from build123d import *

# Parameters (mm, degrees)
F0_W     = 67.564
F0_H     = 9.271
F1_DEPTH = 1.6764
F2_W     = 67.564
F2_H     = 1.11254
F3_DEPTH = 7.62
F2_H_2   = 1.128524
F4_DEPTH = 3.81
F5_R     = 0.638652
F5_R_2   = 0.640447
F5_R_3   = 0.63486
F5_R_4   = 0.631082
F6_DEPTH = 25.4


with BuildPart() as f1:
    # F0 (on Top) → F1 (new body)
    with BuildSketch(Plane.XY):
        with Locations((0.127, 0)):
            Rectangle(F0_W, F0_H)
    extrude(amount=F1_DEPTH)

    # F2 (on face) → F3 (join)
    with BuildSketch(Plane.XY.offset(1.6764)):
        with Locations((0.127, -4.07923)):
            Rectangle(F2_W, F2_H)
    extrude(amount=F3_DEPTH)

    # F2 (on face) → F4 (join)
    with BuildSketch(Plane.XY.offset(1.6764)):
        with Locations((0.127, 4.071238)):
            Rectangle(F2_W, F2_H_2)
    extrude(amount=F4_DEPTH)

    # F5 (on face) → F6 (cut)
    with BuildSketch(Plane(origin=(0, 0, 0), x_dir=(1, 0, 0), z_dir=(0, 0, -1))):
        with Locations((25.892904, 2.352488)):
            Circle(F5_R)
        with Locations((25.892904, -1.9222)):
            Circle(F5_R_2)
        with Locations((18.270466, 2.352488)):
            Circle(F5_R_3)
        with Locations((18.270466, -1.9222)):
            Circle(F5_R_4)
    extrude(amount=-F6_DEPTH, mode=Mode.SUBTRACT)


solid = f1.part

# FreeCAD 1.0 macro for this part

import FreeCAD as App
import Part
import Sketcher
from FreeCAD import Vector
Q = App.Units.Quantity


def add_polygon(sketch, points):
    """Adds a closed chain of lines whose ends are joined by coincident constraints."""
    first, n = sketch.GeometryCount, len(points)
    for a, b in zip(points, points[1:] + points[:1]):
        sketch.addGeometry(Part.LineSegment(App.Vector(*a, 0), App.Vector(*b, 0)), False)
    for i in range(n):
        sketch.addConstraint(Sketcher.Constraint("Coincident", first + i, 2, first + (i + 1) % n, 1))

doc = App.newDocument("Part")
body = doc.addObject("PartDesign::Body", "Body")

sketch1 = doc.addObject("Sketcher::SketchObject", "Sketch")
body.addObject(sketch1)
sketch1.AttachmentSupport = (doc.XY_Plane, [""])
sketch1.MapMode = "FlatFace"
add_polygon(sketch1, [(-34, 5), (-34, -5), (34, -5), (34, 5)])
sketch1.addConstraint([
    Sketcher.Constraint("Vertical", 0),
    Sketcher.Constraint("Horizontal", 1),
    Sketcher.Constraint("Vertical", 2),
    Sketcher.Constraint("Horizontal", 3),
    Sketcher.Constraint("DistanceX", 1, 1, 1, 2, Q("2.66 in")),
    Sketcher.Constraint("DistanceY", 0, 2, 0, 1, Q("0.365 in")),
    Sketcher.Constraint("DistanceX", 0, 2, -1, 1, Q("1.325 in")),
    Sketcher.Constraint("DistanceY", 0, 2, -1, 1, Q("0.1825 in")),
])
pad1 = doc.addObject("PartDesign::Pad", "Pad")
body.addObject(pad1)
pad1.Profile = sketch1
pad1.Length = Q("0.066 in")

sketch2 = doc.addObject("Sketcher::SketchObject", "Sketch001")
body.addObject(sketch2)
sketch2.AttachmentSupport = (doc.XY_Plane, [""])
sketch2.MapMode = "FlatFace"
sketch2.AttachmentOffset = App.Placement(Vector(0, 0, 0.066 * 25.4), App.Rotation())
add_polygon(sketch2, [(-33.7, -3.5), (-33.7, -4.6), (33.9, -4.6), (33.9, -3.5)])
sketch2.addConstraint([
    Sketcher.Constraint("Vertical", 0),
    Sketcher.Constraint("Horizontal", 1),
    Sketcher.Constraint("Vertical", 2),
    Sketcher.Constraint("Horizontal", 3),
    Sketcher.Constraint("DistanceX", 1, 1, 1, 2, Q("2.66 in")),
    Sketcher.Constraint("DistanceX", 0, 2, -1, 1, Q("1.325 in")),
    Sketcher.Constraint("DistanceY", 0, 2, -1, 1, Q("0.1825 in")),
    Sketcher.Constraint("DistanceY", 0, 2, 0, 1, 1.11254),
])
pad2 = doc.addObject("PartDesign::Pad", "Pad001")
body.addObject(pad2)
pad2.Profile = sketch2
pad2.Length = Q("0.3 in")

sketch3 = doc.addObject("Sketcher::SketchObject", "Sketch002")
body.addObject(sketch3)
sketch3.AttachmentSupport = (doc.XY_Plane, [""])
sketch3.MapMode = "FlatFace"
sketch3.AttachmentOffset = App.Placement(Vector(0, 0, 0.066 * 25.4), App.Rotation())
add_polygon(sketch3, [(-33.7, 4.6), (-33.7, 3.5), (33.9, 3.5), (33.9, 4.6)])
sketch3.addConstraint([
    Sketcher.Constraint("Vertical", 0),
    Sketcher.Constraint("Horizontal", 1),
    Sketcher.Constraint("Vertical", 2),
    Sketcher.Constraint("Horizontal", 3),
    Sketcher.Constraint("DistanceX", 1, 1, 1, 2, Q("2.66 in")),
    Sketcher.Constraint("DistanceX", 0, 2, -1, 1, Q("1.325 in")),
    Sketcher.Constraint("DistanceY", -1, 1, 2, 2, Q("0.1825 in")),
    Sketcher.Constraint("DistanceY", 0, 2, 0, 1, 1.128524),
])
pad3 = doc.addObject("PartDesign::Pad", "Pad002")
body.addObject(pad3)
pad3.Profile = sketch3
pad3.Length = Q("0.15 in")

sketch4 = doc.addObject("Sketcher::SketchObject", "Sketch003")
body.addObject(sketch4)
sketch4.AttachmentSupport = (doc.XY_Plane, [""])
sketch4.MapMode = "FlatFace"
sketch4.addGeometry([
    Part.Circle(Vector(25.9, -2.4, 0), Vector(0, 0, 1), 0.6),
    Part.Circle(Vector(25.9, 1.9, 0), Vector(0, 0, 1), 0.6),
    Part.Circle(Vector(18.3, -2.4, 0), Vector(0, 0, 1), 0.6),
    Part.Circle(Vector(18.3, 1.9, 0), Vector(0, 0, 1), 0.6),
], False)
sketch4.addConstraint([
    Sketcher.Constraint("Horizontal", 0, 3, 2, 3),
    Sketcher.Constraint("Horizontal", 1, 3, 3, 3),
    Sketcher.Constraint("Vertical", 0, 3, 1, 3),
    Sketcher.Constraint("Vertical", 2, 3, 3, 3),
    Sketcher.Constraint("Diameter", 2, 1.26972),
    Sketcher.Constraint("Diameter", 0, 1.277304),
    Sketcher.Constraint("Diameter", 1, 1.280894),
    Sketcher.Constraint("Diameter", 3, 1.262164),
    Sketcher.Constraint("DistanceY", -1, 1, 1, 3, 1.9222),
    Sketcher.Constraint("DistanceY", 0, 3, -1, 1, 2.352488),
    Sketcher.Constraint("DistanceX", 2, 3, 0, 3, 7.622438),
    Sketcher.Constraint("DistanceX", -1, 1, 0, 3, 25.892904),
])
pocket1 = doc.addObject("PartDesign::Pocket", "Pocket")
body.addObject(pocket1)
pocket1.Profile = sketch4
pocket1.Length = Q("1 in")
pocket1.Reversed = True

doc.recompute()
